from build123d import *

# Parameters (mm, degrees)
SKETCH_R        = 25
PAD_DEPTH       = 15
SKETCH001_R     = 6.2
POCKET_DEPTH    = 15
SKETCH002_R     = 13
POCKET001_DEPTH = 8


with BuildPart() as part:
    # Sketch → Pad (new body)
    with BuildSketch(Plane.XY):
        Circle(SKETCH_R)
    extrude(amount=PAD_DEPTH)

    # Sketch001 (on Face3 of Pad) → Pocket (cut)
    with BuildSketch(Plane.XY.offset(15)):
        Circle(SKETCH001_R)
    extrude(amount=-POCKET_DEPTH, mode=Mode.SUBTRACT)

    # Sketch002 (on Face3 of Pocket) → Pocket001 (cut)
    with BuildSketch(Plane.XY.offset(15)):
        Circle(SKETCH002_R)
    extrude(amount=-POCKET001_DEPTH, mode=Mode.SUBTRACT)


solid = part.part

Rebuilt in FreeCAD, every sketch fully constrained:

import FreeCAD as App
import Part
import Sketcher
from FreeCAD import Vector

doc = App.newDocument("Part")
params = doc.addObject("Spreadsheet::Sheet", "Params")
for row, (alias, value) in enumerate([
    ("sketch1_diameter", "50 mm"),
    ("pad1_length", "15 mm"),
    ("sketch2_diameter", "12.4 mm"),
    ("pocket1_length", "15 mm"),
    ("sketch3_diameter", "26 mm"),
    ("pocket2_length", "8 mm"),
], start=1):
    params.set(f"A{row}", alias)
    params.set(f"B{row}", "=" + value)
    params.setAlias(f"B{row}", alias)

body = doc.addObject("PartDesign::Body", "Body")

# Sketch on XY plane
sketch1 = body.newObject("Sketcher::SketchObject", "Sketch")
sketch1.AttachmentSupport = (doc.getObject("XY_Plane"), [""])
sketch1.MapMode = "FlatFace"
sketch1.addGeometry(Part.Circle(Vector(0, 0, 0), Vector(0, 0, 1), 25), False)
sketch1.addConstraint(Sketcher.Constraint("Coincident", 0, 3, -1, 1))
sketch1.addConstraint(Sketcher.Constraint("Diameter", 0, 50.0))
sketch1.setExpression("Constraints[1]", "Params.sketch1_diameter")
pad1 = body.newObject("PartDesign::Pad", "Pad")
pad1.Profile = sketch1
pad1.setExpression("Length", "Params.pad1_length")

# Sketch on XY plane
sketch2 = body.newObject("Sketcher::SketchObject", "Sketch001")
sketch2.AttachmentSupport = (doc.getObject("XY_Plane"), [""])
sketch2.MapMode = "FlatFace"
sketch2.AttachmentOffset = App.Placement(Vector(0, 0, 15), App.Rotation())
sketch2.addGeometry(Part.Circle(Vector(0, 0, 0), Vector(0, 0, 1), 6), False)
sketch2.addConstraint(Sketcher.Constraint("Coincident", 0, 3, -1, 1))
sketch2.addConstraint(Sketcher.Constraint("Diameter", 0, 12.4))
sketch2.setExpression("Constraints[1]", "Params.sketch2_diameter")
pocket1 = body.newObject("PartDesign::Pocket", "Pocket")
pocket1.Profile = sketch2
pocket1.setExpression("Length", "Params.pocket1_length")

# Sketch on XY plane
sketch3 = body.newObject("Sketcher::SketchObject", "Sketch002")
sketch3.AttachmentSupport = (doc.getObject("XY_Plane"), [""])
sketch3.MapMode = "FlatFace"
sketch3.AttachmentOffset = App.Placement(Vector(0, 0, 15), App.Rotation())
sketch3.addGeometry(Part.Circle(Vector(0, 0, 0), Vector(0, 0, 1), 13), False)
sketch3.addConstraint(Sketcher.Constraint("Coincident", 0, 3, -1, 1))
sketch3.addConstraint(Sketcher.Constraint("Diameter", 0, 26.0))
sketch3.setExpression("Constraints[1]", "Params.sketch3_diameter")
pocket2 = body.newObject("PartDesign::Pocket", "Pocket001")
pocket2.Profile = sketch3
pocket2.setExpression("Length", "Params.pocket2_length")

doc.recompute()
